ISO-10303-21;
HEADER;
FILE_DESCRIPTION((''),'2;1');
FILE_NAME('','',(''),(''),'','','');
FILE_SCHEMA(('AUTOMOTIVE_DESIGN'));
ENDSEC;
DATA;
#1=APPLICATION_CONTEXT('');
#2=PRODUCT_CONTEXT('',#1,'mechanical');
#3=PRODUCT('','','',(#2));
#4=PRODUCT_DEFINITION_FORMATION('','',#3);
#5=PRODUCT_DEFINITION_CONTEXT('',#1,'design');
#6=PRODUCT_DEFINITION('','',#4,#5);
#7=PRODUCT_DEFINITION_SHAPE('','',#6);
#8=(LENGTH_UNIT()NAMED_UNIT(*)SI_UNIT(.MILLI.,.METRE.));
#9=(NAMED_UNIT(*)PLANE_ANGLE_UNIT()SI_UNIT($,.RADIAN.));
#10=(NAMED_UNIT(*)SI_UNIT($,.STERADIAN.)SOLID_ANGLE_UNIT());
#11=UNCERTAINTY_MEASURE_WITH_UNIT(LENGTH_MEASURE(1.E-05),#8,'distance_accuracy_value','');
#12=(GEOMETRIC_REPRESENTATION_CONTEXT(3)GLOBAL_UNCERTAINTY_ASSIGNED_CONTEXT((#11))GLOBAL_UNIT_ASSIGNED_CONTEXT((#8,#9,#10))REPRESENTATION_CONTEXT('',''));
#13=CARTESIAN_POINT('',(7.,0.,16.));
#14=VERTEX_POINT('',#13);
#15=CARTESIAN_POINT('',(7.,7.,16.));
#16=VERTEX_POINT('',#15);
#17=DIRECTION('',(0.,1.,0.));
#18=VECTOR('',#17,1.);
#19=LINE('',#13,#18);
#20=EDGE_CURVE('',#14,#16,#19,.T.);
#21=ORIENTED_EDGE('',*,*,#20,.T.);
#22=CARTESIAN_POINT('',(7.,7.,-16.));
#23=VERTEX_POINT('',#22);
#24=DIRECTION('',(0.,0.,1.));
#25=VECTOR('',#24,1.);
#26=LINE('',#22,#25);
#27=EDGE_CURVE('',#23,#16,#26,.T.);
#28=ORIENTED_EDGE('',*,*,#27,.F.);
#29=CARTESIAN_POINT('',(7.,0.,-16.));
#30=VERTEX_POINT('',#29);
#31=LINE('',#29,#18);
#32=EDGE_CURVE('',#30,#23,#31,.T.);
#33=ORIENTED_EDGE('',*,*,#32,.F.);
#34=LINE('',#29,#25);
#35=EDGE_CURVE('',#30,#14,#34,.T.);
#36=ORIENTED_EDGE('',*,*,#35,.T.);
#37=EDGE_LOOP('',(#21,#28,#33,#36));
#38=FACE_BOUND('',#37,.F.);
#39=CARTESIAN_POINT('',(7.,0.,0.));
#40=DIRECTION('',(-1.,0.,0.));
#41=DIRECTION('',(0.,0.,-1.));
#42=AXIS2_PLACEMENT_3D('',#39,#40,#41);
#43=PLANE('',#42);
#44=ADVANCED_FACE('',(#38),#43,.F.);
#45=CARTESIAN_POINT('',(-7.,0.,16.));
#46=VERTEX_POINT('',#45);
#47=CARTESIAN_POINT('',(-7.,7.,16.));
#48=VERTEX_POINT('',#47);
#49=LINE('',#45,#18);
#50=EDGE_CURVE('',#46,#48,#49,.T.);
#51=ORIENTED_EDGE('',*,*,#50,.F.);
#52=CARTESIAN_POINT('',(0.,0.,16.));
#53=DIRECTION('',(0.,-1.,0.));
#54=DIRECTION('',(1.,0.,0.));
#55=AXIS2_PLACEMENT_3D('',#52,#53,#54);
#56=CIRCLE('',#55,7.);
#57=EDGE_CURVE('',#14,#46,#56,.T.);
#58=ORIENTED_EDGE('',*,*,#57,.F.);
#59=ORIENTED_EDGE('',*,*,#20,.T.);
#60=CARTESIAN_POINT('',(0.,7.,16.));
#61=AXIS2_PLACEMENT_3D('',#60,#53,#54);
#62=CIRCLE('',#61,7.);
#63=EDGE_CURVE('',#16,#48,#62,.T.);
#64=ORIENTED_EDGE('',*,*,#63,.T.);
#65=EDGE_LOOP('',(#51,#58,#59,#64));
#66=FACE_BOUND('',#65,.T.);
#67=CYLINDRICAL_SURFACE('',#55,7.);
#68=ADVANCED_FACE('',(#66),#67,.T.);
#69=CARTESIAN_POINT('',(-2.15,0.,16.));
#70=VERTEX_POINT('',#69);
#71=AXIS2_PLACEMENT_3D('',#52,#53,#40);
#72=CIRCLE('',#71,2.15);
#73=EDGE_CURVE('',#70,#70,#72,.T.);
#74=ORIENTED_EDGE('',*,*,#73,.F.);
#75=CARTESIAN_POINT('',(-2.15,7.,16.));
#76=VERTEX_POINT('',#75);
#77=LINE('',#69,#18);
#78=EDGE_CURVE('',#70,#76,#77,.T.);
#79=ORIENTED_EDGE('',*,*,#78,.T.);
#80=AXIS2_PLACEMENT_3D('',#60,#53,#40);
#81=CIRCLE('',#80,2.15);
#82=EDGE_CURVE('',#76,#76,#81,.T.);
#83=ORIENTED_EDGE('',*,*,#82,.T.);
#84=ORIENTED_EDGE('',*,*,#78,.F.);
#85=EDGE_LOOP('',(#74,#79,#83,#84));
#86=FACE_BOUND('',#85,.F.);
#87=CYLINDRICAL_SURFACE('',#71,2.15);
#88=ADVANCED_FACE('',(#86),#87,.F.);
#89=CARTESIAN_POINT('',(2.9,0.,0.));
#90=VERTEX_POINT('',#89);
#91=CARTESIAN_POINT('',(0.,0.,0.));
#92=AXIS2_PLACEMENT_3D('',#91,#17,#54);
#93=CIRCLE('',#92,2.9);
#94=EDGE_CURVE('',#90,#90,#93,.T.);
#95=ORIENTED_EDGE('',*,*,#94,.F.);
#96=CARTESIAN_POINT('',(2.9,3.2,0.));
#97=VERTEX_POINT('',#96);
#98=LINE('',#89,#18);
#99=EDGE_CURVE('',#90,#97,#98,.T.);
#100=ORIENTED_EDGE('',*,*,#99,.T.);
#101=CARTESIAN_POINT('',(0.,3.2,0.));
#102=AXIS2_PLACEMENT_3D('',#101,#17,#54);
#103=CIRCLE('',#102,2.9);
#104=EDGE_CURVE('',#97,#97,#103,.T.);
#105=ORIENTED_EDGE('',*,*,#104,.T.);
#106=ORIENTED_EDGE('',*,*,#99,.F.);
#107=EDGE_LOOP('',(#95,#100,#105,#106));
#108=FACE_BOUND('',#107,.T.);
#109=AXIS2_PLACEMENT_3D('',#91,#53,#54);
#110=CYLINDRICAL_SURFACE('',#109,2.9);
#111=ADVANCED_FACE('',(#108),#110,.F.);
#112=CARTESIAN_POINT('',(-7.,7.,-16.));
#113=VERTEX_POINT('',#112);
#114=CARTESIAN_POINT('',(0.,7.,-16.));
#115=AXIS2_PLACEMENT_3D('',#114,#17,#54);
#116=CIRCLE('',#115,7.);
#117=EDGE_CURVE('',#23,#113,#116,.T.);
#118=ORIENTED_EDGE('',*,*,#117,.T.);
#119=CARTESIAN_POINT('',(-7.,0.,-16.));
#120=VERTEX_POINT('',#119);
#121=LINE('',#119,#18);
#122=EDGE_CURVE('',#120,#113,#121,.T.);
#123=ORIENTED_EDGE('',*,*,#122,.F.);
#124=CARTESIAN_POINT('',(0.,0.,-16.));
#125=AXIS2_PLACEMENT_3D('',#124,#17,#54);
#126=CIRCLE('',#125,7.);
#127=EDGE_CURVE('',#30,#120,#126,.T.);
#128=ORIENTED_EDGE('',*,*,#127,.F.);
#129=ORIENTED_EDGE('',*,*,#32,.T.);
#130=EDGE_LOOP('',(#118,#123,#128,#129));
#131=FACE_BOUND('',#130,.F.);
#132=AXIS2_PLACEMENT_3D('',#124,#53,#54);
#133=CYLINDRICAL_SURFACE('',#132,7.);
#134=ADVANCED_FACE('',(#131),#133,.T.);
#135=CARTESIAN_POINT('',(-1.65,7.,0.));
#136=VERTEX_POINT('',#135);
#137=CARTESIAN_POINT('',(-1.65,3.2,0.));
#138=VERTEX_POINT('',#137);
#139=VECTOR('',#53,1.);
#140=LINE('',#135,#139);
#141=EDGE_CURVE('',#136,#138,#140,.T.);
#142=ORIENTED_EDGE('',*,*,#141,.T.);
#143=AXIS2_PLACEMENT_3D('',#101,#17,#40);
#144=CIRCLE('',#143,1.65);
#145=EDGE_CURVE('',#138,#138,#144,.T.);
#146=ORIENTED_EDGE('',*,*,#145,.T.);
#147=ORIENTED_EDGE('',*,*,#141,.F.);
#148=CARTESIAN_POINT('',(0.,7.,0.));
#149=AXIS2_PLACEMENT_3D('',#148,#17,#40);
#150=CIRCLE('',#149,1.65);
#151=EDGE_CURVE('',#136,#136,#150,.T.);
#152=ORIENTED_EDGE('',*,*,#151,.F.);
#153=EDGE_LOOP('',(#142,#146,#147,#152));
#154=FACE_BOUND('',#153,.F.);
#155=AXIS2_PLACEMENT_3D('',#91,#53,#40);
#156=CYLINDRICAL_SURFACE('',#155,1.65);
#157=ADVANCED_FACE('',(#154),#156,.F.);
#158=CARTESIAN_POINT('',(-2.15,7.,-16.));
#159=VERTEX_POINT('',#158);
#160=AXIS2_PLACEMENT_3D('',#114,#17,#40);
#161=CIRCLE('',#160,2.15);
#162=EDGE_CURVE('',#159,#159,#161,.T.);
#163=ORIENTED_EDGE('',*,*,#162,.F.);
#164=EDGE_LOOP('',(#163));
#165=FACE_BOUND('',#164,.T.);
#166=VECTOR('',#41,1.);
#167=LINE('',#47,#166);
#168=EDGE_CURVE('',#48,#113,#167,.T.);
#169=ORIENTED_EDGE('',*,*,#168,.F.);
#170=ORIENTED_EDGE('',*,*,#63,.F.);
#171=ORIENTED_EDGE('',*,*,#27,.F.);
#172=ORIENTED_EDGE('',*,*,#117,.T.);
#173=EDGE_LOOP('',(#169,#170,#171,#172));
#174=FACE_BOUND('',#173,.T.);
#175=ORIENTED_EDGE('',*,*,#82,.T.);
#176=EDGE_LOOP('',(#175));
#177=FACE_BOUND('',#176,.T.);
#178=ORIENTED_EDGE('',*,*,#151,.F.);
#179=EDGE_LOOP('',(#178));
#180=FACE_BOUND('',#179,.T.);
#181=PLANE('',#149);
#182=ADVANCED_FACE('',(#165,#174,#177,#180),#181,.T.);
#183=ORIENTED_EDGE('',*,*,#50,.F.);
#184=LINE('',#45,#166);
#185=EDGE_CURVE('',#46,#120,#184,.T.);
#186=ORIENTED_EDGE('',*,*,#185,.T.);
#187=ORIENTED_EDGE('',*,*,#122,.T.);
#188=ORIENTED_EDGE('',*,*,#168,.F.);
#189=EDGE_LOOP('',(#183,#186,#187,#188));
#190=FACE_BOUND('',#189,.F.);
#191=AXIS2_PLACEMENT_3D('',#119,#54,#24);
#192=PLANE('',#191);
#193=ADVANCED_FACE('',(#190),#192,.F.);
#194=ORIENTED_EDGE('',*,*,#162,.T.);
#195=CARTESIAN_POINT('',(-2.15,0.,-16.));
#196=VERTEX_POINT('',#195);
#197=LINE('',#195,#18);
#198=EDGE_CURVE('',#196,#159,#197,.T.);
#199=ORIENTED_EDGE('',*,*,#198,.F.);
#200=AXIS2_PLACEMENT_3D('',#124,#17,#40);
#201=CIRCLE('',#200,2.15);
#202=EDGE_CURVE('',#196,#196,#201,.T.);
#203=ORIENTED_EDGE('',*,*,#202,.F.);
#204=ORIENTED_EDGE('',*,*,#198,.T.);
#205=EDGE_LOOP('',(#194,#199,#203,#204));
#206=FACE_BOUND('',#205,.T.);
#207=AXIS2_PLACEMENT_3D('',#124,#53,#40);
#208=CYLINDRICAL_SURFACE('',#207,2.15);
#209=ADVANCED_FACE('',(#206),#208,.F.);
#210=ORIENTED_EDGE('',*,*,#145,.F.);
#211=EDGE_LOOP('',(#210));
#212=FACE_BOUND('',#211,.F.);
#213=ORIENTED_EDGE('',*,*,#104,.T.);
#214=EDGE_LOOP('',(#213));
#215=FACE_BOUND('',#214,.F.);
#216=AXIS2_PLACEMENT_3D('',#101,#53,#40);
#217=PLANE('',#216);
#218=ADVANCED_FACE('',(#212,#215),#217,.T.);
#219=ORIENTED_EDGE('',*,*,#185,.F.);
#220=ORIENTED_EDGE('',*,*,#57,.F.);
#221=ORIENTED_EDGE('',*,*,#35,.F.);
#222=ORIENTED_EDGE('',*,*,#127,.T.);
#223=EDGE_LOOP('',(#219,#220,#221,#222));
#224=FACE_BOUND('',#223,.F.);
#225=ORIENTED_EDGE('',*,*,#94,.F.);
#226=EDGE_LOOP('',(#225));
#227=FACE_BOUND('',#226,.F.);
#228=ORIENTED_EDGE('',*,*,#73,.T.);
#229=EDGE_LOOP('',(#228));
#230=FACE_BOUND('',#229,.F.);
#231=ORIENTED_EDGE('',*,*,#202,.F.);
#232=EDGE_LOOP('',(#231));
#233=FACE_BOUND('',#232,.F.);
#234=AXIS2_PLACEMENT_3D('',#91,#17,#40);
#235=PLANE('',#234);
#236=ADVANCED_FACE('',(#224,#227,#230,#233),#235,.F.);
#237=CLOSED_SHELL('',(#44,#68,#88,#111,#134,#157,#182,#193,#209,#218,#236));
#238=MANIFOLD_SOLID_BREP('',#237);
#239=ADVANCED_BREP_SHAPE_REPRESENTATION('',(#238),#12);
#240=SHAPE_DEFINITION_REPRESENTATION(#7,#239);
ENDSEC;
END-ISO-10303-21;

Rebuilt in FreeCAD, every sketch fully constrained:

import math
import FreeCAD as App
import Part
import Sketcher
from FreeCAD import Vector
Q = App.Units.Quantity

doc = App.newDocument("Part")
body = doc.addObject("PartDesign::Body", "Body")

sketch1 = body.newObject("Sketcher::SketchObject", "Sketch")
sketch1.AttachmentSupport = (doc.getObject("XZ_Plane"), [""])
sketch1.MapMode = "FlatFace"
sketch1.addGeometry([
    Part.ArcOfCircle(Part.Circle(Vector(0, 0, 0), Vector(0, 0, 1), 7), math.radians(0), math.radians(180)),
    Part.LineSegment(Vector(7, 0, 0), Vector(7, -16, 0)),
    Part.ArcOfCircle(Part.Circle(Vector(0, -16, 0), Vector(0, 0, 1), 7), math.radians(180), math.radians(360)),
    Part.LineSegment(Vector(-7, -16, 0), Vector(-7, 0, 0)),
    Part.Circle(Vector(0, -16, 0), Vector(0, 0, 1), 2.15),
    Part.Circle(Vector(0, 0, 0), Vector(0, 0, 1), 1.65),
], False)
sketch1.addConstraint([
    Sketcher.Constraint("Tangent", 0, 1, 1, 1),
    Sketcher.Constraint("Tangent", 1, 2, 2, 2),
    Sketcher.Constraint("Tangent", 2, 1, 3, 1),
    Sketcher.Constraint("Tangent", 3, 2, 0, 2),
    Sketcher.Constraint("Vertical", 1),
    Sketcher.Constraint("Vertical", 3),
    Sketcher.Constraint("Coincident", 0, 3, -1, 1),
    Sketcher.Constraint("Coincident", 5, 3, -1, 1),
    Sketcher.Constraint("Coincident", 4, 3, 2, 3),
    Sketcher.Constraint("Radius", 0, Q("7 mm")),
    Sketcher.Constraint("Diameter", 4, Q("4.3 mm")),
    Sketcher.Constraint("Diameter", 5, Q("3.3 mm")),
    Sketcher.Constraint("DistanceY", 1, 2, 1, 1, Q("16 mm")),
])
pad1 = body.newObject("PartDesign::Pad", "Pad")
pad1.Profile = sketch1
pad1.Length = 7
pad1.Reversed = True

sketch2 = body.newObject("Sketcher::SketchObject", "Sketch001")
sketch2.AttachmentSupport = (doc.getObject("XZ_Plane"), [""])
sketch2.MapMode = "FlatFace"
sketch2.addGeometry([
    Part.Circle(Vector(0, 0, 0), Vector(0, 0, 1), 2.9),
    Part.Circle(Vector(0, 0, 0), Vector(0, 0, 1), 1.65),
], False)
sketch2.addConstraint([
    Sketcher.Constraint("Coincident", 0, 3, -1, 1),
    Sketcher.Constraint("Coincident", 1, 3, -1, 1),
    Sketcher.Constraint("Diameter", 0, Q("5.8 mm")),
    Sketcher.Constraint("Diameter", 1, Q("3.3 mm")),
])
pocket1 = body.newObject("PartDesign::Pocket", "Pocket")
pocket1.Profile = sketch2
pocket1.Length = 3.2
doc.recompute()

mirrored = body.newObject("PartDesign::Mirrored", "Mirrored")
mirrored.Originals = [pad1, pocket1]
mirrored.MirrorPlane = (doc.getObject("XY_Plane"), [""])
body.Tip = mirrored

doc.recompute()
